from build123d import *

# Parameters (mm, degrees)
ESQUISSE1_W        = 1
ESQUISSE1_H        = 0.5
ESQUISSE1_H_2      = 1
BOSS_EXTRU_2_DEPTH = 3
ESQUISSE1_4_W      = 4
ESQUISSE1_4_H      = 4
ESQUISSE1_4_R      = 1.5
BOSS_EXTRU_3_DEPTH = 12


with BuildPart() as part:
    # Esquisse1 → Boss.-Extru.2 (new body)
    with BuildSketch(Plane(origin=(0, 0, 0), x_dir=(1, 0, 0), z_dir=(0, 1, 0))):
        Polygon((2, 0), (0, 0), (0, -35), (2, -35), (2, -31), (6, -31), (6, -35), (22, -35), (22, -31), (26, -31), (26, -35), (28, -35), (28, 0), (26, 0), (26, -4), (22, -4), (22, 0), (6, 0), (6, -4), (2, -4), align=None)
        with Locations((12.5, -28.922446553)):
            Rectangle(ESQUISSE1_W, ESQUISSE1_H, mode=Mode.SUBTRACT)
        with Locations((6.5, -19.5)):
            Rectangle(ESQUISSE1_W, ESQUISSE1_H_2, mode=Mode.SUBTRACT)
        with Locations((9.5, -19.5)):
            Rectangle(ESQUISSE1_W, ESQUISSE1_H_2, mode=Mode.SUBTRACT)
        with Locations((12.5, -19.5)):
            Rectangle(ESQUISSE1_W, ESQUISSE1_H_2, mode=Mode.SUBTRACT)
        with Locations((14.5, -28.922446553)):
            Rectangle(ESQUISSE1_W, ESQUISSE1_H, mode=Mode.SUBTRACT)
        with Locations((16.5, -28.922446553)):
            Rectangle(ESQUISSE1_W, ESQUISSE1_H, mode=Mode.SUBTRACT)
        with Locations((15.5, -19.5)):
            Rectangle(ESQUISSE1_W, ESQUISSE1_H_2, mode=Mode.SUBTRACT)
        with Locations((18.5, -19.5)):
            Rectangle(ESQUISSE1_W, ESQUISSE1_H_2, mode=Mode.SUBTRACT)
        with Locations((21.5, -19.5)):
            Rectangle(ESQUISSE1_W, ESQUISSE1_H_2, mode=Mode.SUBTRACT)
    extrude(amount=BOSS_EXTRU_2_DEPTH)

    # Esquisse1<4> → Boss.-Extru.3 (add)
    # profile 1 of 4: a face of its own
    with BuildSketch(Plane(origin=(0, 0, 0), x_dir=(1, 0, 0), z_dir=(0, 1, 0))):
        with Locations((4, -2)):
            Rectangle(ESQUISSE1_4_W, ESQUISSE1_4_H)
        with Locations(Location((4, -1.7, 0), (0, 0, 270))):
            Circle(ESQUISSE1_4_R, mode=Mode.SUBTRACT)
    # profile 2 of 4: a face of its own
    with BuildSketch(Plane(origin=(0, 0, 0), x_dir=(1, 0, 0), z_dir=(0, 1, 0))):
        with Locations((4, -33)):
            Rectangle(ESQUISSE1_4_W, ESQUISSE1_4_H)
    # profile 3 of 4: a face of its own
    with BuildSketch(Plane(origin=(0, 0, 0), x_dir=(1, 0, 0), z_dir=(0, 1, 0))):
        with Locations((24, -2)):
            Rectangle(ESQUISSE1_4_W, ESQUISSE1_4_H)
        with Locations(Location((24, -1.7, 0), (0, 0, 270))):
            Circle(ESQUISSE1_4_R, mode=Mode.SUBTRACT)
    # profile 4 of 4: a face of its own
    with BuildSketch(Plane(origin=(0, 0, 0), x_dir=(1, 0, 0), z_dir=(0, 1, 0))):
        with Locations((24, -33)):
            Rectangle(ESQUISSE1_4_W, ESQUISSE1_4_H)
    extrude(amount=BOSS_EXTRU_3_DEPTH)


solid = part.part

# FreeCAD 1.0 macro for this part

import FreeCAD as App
import Part
import Sketcher

doc = App.newDocument("Part")
params = doc.addObject("Spreadsheet::Sheet", "Params")
for row, (alias, value) in enumerate([
    ("sketch1_width", "2 mm"),
    ("sketch1_width2", "4 mm"),
    ("sketch1_width3", "16 mm"),
    ("sketch1_width4", "1 mm"),
    ("sketch1_height", "35 mm"),
    ("pad1_length", "3 mm"),
    ("sketch2_diameter", "3 mm"),
    ("sketch2_width", "4 mm"),
    ("pad2_length", "12 mm"),
], start=1):
    params.set(f"A{row}", alias)
    params.set(f"B{row}", "=" + value)
    params.setAlias(f"B{row}", alias)

body = doc.addObject("PartDesign::Body", "Body")

sketch1 = body.newObject("Sketcher::SketchObject", "Sketch")
sketch1.AttachmentSupport = (doc.getObject("XZ_Plane"), [""])
sketch1.MapMode = "FlatFace"
sketch1.addGeometry(Part.LineSegment(App.Vector(2, 0, 0), App.Vector(0, 0, 0)), False)
sketch1.addGeometry(Part.LineSegment(App.Vector(0, 0, 0), App.Vector(0, 35, 0)), False)
sketch1.addGeometry(Part.LineSegment(App.Vector(0, 35, 0), App.Vector(2, 35, 0)), False)
sketch1.addGeometry(Part.LineSegment(App.Vector(2, 35, 0), App.Vector(2, 31, 0)), False)
sketch1.addGeometry(Part.LineSegment(App.Vector(2, 31, 0), App.Vector(6, 31, 0)), False)
sketch1.addGeometry(Part.LineSegment(App.Vector(6, 31, 0), App.Vector(6, 35, 0)), False)
sketch1.addGeometry(Part.LineSegment(App.Vector(6, 35, 0), App.Vector(22, 35, 0)), False)
sketch1.addGeometry(Part.LineSegment(App.Vector(22, 35, 0), App.Vector(22, 31, 0)), False)
sketch1.addGeometry(Part.LineSegment(App.Vector(22, 31, 0), App.Vector(26, 31, 0)), False)
sketch1.addGeometry(Part.LineSegment(App.Vector(26, 31, 0), App.Vector(26, 35, 0)), False)
sketch1.addGeometry(Part.LineSegment(App.Vector(26, 35, 0), App.Vector(28, 35, 0)), False)
sketch1.addGeometry(Part.LineSegment(App.Vector(28, 35, 0), App.Vector(28, 0, 0)), False)
sketch1.addGeometry(Part.LineSegment(App.Vector(28, 0, 0), App.Vector(26, 0, 0)), False)
sketch1.addGeometry(Part.LineSegment(App.Vector(26, 0, 0), App.Vector(26, 4, 0)), False)
sketch1.addGeometry(Part.LineSegment(App.Vector(26, 4, 0), App.Vector(22, 4, 0)), False)
sketch1.addGeometry(Part.LineSegment(App.Vector(22, 4, 0), App.Vector(22, 0, 0)), False)
sketch1.addGeometry(Part.LineSegment(App.Vector(22, 0, 0), App.Vector(6, 0, 0)), False)
sketch1.addGeometry(Part.LineSegment(App.Vector(6, 0, 0), App.Vector(6, 4, 0)), False)
sketch1.addGeometry(Part.LineSegment(App.Vector(6, 4, 0), App.Vector(2, 4, 0)), False)
sketch1.addGeometry(Part.LineSegment(App.Vector(2, 4, 0), App.Vector(2, 0, 0)), False)
sketch1.addGeometry(Part.LineSegment(App.Vector(13, 29.172447, 0), App.Vector(12, 29.172447, 0)), False)
sketch1.addGeometry(Part.LineSegment(App.Vector(12, 29.172447, 0), App.Vector(12, 28.672447, 0)), False)
sketch1.addGeometry(Part.LineSegment(App.Vector(12, 28.672447, 0), App.Vector(13, 28.672447, 0)), False)
sketch1.addGeometry(Part.LineSegment(App.Vector(13, 28.672447, 0), App.Vector(13, 29.172447, 0)), False)
sketch1.addGeometry(Part.LineSegment(App.Vector(15, 29.172447, 0), App.Vector(14, 29.172447, 0)), False)
sketch1.addGeometry(Part.LineSegment(App.Vector(14, 29.172447, 0), App.Vector(14, 28.672447, 0)), False)
sketch1.addGeometry(Part.LineSegment(App.Vector(14, 28.672447, 0), App.Vector(15, 28.672447, 0)), False)
sketch1.addGeometry(Part.LineSegment(App.Vector(15, 28.672447, 0), App.Vector(15, 29.172447, 0)), False)
sketch1.addGeometry(Part.LineSegment(App.Vector(17, 29.172447, 0), App.Vector(16, 29.172447, 0)), False)
sketch1.addGeometry(Part.LineSegment(App.Vector(16, 29.172447, 0), App.Vector(16, 28.672447, 0)), False)
sketch1.addGeometry(Part.LineSegment(App.Vector(16, 28.672447, 0), App.Vector(17, 28.672447, 0)), False)
sketch1.addGeometry(Part.LineSegment(App.Vector(17, 28.672447, 0), App.Vector(17, 29.172447, 0)), False)
sketch1.addGeometry(Part.LineSegment(App.Vector(7, 20, 0), App.Vector(6, 20, 0)), False)
sketch1.addGeometry(Part.LineSegment(App.Vector(6, 20, 0), App.Vector(6, 19, 0)), False)
sketch1.addGeometry(Part.LineSegment(App.Vector(6, 19, 0), App.Vector(7, 19, 0)), False)
sketch1.addGeometry(Part.LineSegment(App.Vector(7, 19, 0), App.Vector(7, 20, 0)), False)
sketch1.addGeometry(Part.LineSegment(App.Vector(10, 20, 0), App.Vector(9, 20, 0)), False)
sketch1.addGeometry(Part.LineSegment(App.Vector(9, 20, 0), App.Vector(9, 19, 0)), False)
sketch1.addGeometry(Part.LineSegment(App.Vector(9, 19, 0), App.Vector(10, 19, 0)), False)
sketch1.addGeometry(Part.LineSegment(App.Vector(10, 19, 0), App.Vector(10, 20, 0)), False)
sketch1.addGeometry(Part.LineSegment(App.Vector(13, 20, 0), App.Vector(12, 20, 0)), False)
sketch1.addGeometry(Part.LineSegment(App.Vector(12, 20, 0), App.Vector(12, 19, 0)), False)
sketch1.addGeometry(Part.LineSegment(App.Vector(12, 19, 0), App.Vector(13, 19, 0)), False)
sketch1.addGeometry(Part.LineSegment(App.Vector(13, 19, 0), App.Vector(13, 20, 0)), False)
sketch1.addGeometry(Part.LineSegment(App.Vector(16, 20, 0), App.Vector(15, 20, 0)), False)
sketch1.addGeometry(Part.LineSegment(App.Vector(15, 20, 0), App.Vector(15, 19, 0)), False)
sketch1.addGeometry(Part.LineSegment(App.Vector(15, 19, 0), App.Vector(16, 19, 0)), False)
sketch1.addGeometry(Part.LineSegment(App.Vector(16, 19, 0), App.Vector(16, 20, 0)), False)
sketch1.addGeometry(Part.LineSegment(App.Vector(19, 20, 0), App.Vector(18, 20, 0)), False)
sketch1.addGeometry(Part.LineSegment(App.Vector(18, 20, 0), App.Vector(18, 19, 0)), False)
sketch1.addGeometry(Part.LineSegment(App.Vector(18, 19, 0), App.Vector(19, 19, 0)), False)
sketch1.addGeometry(Part.LineSegment(App.Vector(19, 19, 0), App.Vector(19, 20, 0)), False)
sketch1.addGeometry(Part.LineSegment(App.Vector(22, 20, 0), App.Vector(21, 20, 0)), False)
sketch1.addGeometry(Part.LineSegment(App.Vector(21, 20, 0), App.Vector(21, 19, 0)), False)
sketch1.addGeometry(Part.LineSegment(App.Vector(21, 19, 0), App.Vector(22, 19, 0)), False)
sketch1.addGeometry(Part.LineSegment(App.Vector(22, 19, 0), App.Vector(22, 20, 0)), False)
sketch1.addConstraint(Sketcher.Constraint("Coincident", 0, 2, 1, 1))
sketch1.addConstraint(Sketcher.Constraint("Coincident", 1, 2, 2, 1))
sketch1.addConstraint(Sketcher.Constraint("Coincident", 2, 2, 3, 1))
sketch1.addConstraint(Sketcher.Constraint("Coincident", 3, 2, 4, 1))
sketch1.addConstraint(Sketcher.Constraint("Coincident", 4, 2, 5, 1))
sketch1.addConstraint(Sketcher.Constraint("Coincident", 5, 2, 6, 1))
sketch1.addConstraint(Sketcher.Constraint("Coincident", 6, 2, 7, 1))
sketch1.addConstraint(Sketcher.Constraint("Coincident", 7, 2, 8, 1))
sketch1.addConstraint(Sketcher.Constraint("Coincident", 8, 2, 9, 1))
sketch1.addConstraint(Sketcher.Constraint("Coincident", 9, 2, 10, 1))
sketch1.addConstraint(Sketcher.Constraint("Coincident", 10, 2, 11, 1))
sketch1.addConstraint(Sketcher.Constraint("Coincident", 11, 2, 12, 1))
sketch1.addConstraint(Sketcher.Constraint("Coincident", 12, 2, 13, 1))
sketch1.addConstraint(Sketcher.Constraint("Coincident", 13, 2, 14, 1))
sketch1.addConstraint(Sketcher.Constraint("Coincident", 14, 2, 15, 1))
sketch1.addConstraint(Sketcher.Constraint("Coincident", 15, 2, 16, 1))
sketch1.addConstraint(Sketcher.Constraint("Coincident", 16, 2, 17, 1))
sketch1.addConstraint(Sketcher.Constraint("Coincident", 17, 2, 18, 1))
sketch1.addConstraint(Sketcher.Constraint("Coincident", 18, 2, 19, 1))
sketch1.addConstraint(Sketcher.Constraint("Coincident", 19, 2, 0, 1))
sketch1.addConstraint(Sketcher.Constraint("Coincident", 20, 2, 21, 1))
sketch1.addConstraint(Sketcher.Constraint("Coincident", 21, 2, 22, 1))
sketch1.addConstraint(Sketcher.Constraint("Coincident", 22, 2, 23, 1))
sketch1.addConstraint(Sketcher.Constraint("Coincident", 23, 2, 20, 1))
sketch1.addConstraint(Sketcher.Constraint("Coincident", 24, 2, 25, 1))
sketch1.addConstraint(Sketcher.Constraint("Coincident", 25, 2, 26, 1))
sketch1.addConstraint(Sketcher.Constraint("Coincident", 26, 2, 27, 1))
sketch1.addConstraint(Sketcher.Constraint("Coincident", 27, 2, 24, 1))
sketch1.addConstraint(Sketcher.Constraint("Coincident", 28, 2, 29, 1))
sketch1.addConstraint(Sketcher.Constraint("Coincident", 29, 2, 30, 1))
sketch1.addConstraint(Sketcher.Constraint("Coincident", 30, 2, 31, 1))
sketch1.addConstraint(Sketcher.Constraint("Coincident", 31, 2, 28, 1))
sketch1.addConstraint(Sketcher.Constraint("Coincident", 32, 2, 33, 1))
sketch1.addConstraint(Sketcher.Constraint("Coincident", 33, 2, 34, 1))
sketch1.addConstraint(Sketcher.Constraint("Coincident", 34, 2, 35, 1))
sketch1.addConstraint(Sketcher.Constraint("Coincident", 35, 2, 32, 1))
sketch1.addConstraint(Sketcher.Constraint("Coincident", 36, 2, 37, 1))
sketch1.addConstraint(Sketcher.Constraint("Coincident", 37, 2, 38, 1))
sketch1.addConstraint(Sketcher.Constraint("Coincident", 38, 2, 39, 1))
sketch1.addConstraint(Sketcher.Constraint("Coincident", 39, 2, 36, 1))
sketch1.addConstraint(Sketcher.Constraint("Coincident", 40, 2, 41, 1))
sketch1.addConstraint(Sketcher.Constraint("Coincident", 41, 2, 42, 1))
sketch1.addConstraint(Sketcher.Constraint("Coincident", 42, 2, 43, 1))
sketch1.addConstraint(Sketcher.Constraint("Coincident", 43, 2, 40, 1))
sketch1.addConstraint(Sketcher.Constraint("Coincident", 44, 2, 45, 1))
sketch1.addConstraint(Sketcher.Constraint("Coincident", 45, 2, 46, 1))
sketch1.addConstraint(Sketcher.Constraint("Coincident", 46, 2, 47, 1))
sketch1.addConstraint(Sketcher.Constraint("Coincident", 47, 2, 44, 1))
sketch1.addConstraint(Sketcher.Constraint("Coincident", 48, 2, 49, 1))
sketch1.addConstraint(Sketcher.Constraint("Coincident", 49, 2, 50, 1))
sketch1.addConstraint(Sketcher.Constraint("Coincident", 50, 2, 51, 1))
sketch1.addConstraint(Sketcher.Constraint("Coincident", 51, 2, 48, 1))
sketch1.addConstraint(Sketcher.Constraint("Coincident", 52, 2, 53, 1))
sketch1.addConstraint(Sketcher.Constraint("Coincident", 53, 2, 54, 1))
sketch1.addConstraint(Sketcher.Constraint("Coincident", 54, 2, 55, 1))
sketch1.addConstraint(Sketcher.Constraint("Coincident", 55, 2, 52, 1))
sketch1.addConstraint(Sketcher.Constraint("Horizontal", 0))
sketch1.addConstraint(Sketcher.Constraint("Vertical", 1))
sketch1.addConstraint(Sketcher.Constraint("Horizontal", 2))
sketch1.addConstraint(Sketcher.Constraint("Vertical", 3))
sketch1.addConstraint(Sketcher.Constraint("Horizontal", 4))
sketch1.addConstraint(Sketcher.Constraint("Vertical", 5))
sketch1.addConstraint(Sketcher.Constraint("Horizontal", 6))
sketch1.addConstraint(Sketcher.Constraint("Vertical", 7))
sketch1.addConstraint(Sketcher.Constraint("Horizontal", 8))
sketch1.addConstraint(Sketcher.Constraint("Vertical", 9))
sketch1.addConstraint(Sketcher.Constraint("Horizontal", 10))
sketch1.addConstraint(Sketcher.Constraint("Vertical", 11))
sketch1.addConstraint(Sketcher.Constraint("Horizontal", 12))
sketch1.addConstraint(Sketcher.Constraint("Vertical", 13))
sketch1.addConstraint(Sketcher.Constraint("Horizontal", 14))
sketch1.addConstraint(Sketcher.Constraint("Vertical", 15))
sketch1.addConstraint(Sketcher.Constraint("Horizontal", 16))
sketch1.addConstraint(Sketcher.Constraint("Vertical", 17))
sketch1.addConstraint(Sketcher.Constraint("Horizontal", 18))
sketch1.addConstraint(Sketcher.Constraint("Vertical", 19))
sketch1.addConstraint(Sketcher.Constraint("Horizontal", 20))
sketch1.addConstraint(Sketcher.Constraint("Vertical", 21))
sketch1.addConstraint(Sketcher.Constraint("Horizontal", 22))
sketch1.addConstraint(Sketcher.Constraint("Vertical", 23))
sketch1.addConstraint(Sketcher.Constraint("Horizontal", 24))
sketch1.addConstraint(Sketcher.Constraint("Vertical", 25))
sketch1.addConstraint(Sketcher.Constraint("Horizontal", 26))
sketch1.addConstraint(Sketcher.Constraint("Vertical", 27))
sketch1.addConstraint(Sketcher.Constraint("Horizontal", 28))
sketch1.addConstraint(Sketcher.Constraint("Vertical", 29))
sketch1.addConstraint(Sketcher.Constraint("Horizontal", 30))
sketch1.addConstraint(Sketcher.Constraint("Vertical", 31))
sketch1.addConstraint(Sketcher.Constraint("Horizontal", 32))
sketch1.addConstraint(Sketcher.Constraint("Vertical", 33))
sketch1.addConstraint(Sketcher.Constraint("Horizontal", 34))
sketch1.addConstraint(Sketcher.Constraint("Vertical", 35))
sketch1.addConstraint(Sketcher.Constraint("Horizontal", 36))
sketch1.addConstraint(Sketcher.Constraint("Vertical", 37))
sketch1.addConstraint(Sketcher.Constraint("Horizontal", 38))
sketch1.addConstraint(Sketcher.Constraint("Vertical", 39))
sketch1.addConstraint(Sketcher.Constraint("Horizontal", 40))
sketch1.addConstraint(Sketcher.Constraint("Vertical", 41))
sketch1.addConstraint(Sketcher.Constraint("Horizontal", 42))
sketch1.addConstraint(Sketcher.Constraint("Vertical", 43))
sketch1.addConstraint(Sketcher.Constraint("Horizontal", 44))
sketch1.addConstraint(Sketcher.Constraint("Vertical", 45))
sketch1.addConstraint(Sketcher.Constraint("Horizontal", 46))
sketch1.addConstraint(Sketcher.Constraint("Vertical", 47))
sketch1.addConstraint(Sketcher.Constraint("Horizontal", 48))
sketch1.addConstraint(Sketcher.Constraint("Vertical", 49))
sketch1.addConstraint(Sketcher.Constraint("Horizontal", 50))
sketch1.addConstraint(Sketcher.Constraint("Vertical", 51))
sketch1.addConstraint(Sketcher.Constraint("Horizontal", 52))
sketch1.addConstraint(Sketcher.Constraint("Vertical", 53))
sketch1.addConstraint(Sketcher.Constraint("Horizontal", 54))
sketch1.addConstraint(Sketcher.Constraint("Vertical", 55))
sketch1.addConstraint(Sketcher.Constraint("Coincident", 0, 2, -1, 1))
sketch1.addConstraint(Sketcher.Constraint("PointOnObject", 11, 2, -1))
sketch1.addConstraint(Sketcher.Constraint("PointOnObject", 15, 2, -1))
sketch1.addConstraint(Sketcher.Constraint("Horizontal", 2, 2, 5, 2))
sketch1.addConstraint(Sketcher.Constraint("Horizontal", 4, 2, 7, 2))
sketch1.addConstraint(Sketcher.Constraint("Horizontal", 6, 2, 9, 2))
sketch1.addConstraint(Sketcher.Constraint("Horizontal", 14, 2, 17, 2))
sketch1.addConstraint(Sketcher.Constraint("Horizontal", 23, 2, 24, 2))
sketch1.addConstraint(Sketcher.Constraint("Horizontal", 22, 2, 25, 2))
sketch1.addConstraint(Sketcher.Constraint("Horizontal", 27, 2, 28, 2))
sketch1.addConstraint(Sketcher.Constraint("Horizontal", 26, 2, 29, 2))
sketch1.addConstraint(Sketcher.Constraint("Horizontal", 35, 2, 36, 2))
sketch1.addConstraint(Sketcher.Constraint("Horizontal", 34, 2, 37, 2))
sketch1.addConstraint(Sketcher.Constraint("Horizontal", 39, 2, 40, 2))
sketch1.addConstraint(Sketcher.Constraint("Horizontal", 38, 2, 41, 2))
sketch1.addConstraint(Sketcher.Constraint("Horizontal", 43, 2, 44, 2))
sketch1.addConstraint(Sketcher.Constraint("Horizontal", 42, 2, 45, 2))
sketch1.addConstraint(Sketcher.Constraint("Horizontal", 47, 2, 48, 2))
sketch1.addConstraint(Sketcher.Constraint("Horizontal", 46, 2, 49, 2))
sketch1.addConstraint(Sketcher.Constraint("Horizontal", 51, 2, 52, 2))
sketch1.addConstraint(Sketcher.Constraint("Horizontal", 50, 2, 53, 2))
sketch1.addConstraint(Sketcher.Constraint("Vertical", 9, 2, 12, 2))
sketch1.addConstraint(Sketcher.Constraint("Vertical", 7, 2, 14, 2))
sketch1.addConstraint(Sketcher.Constraint("Vertical", 5, 2, 16, 2))
sketch1.addConstraint(Sketcher.Constraint("Vertical", 3, 2, 18, 2))
sketch1.addConstraint(Sketcher.Constraint("Vertical", 17, 2, 32, 2))
sketch1.addConstraint(Sketcher.Constraint("Vertical", 21, 2, 40, 2))
sketch1.addConstraint(Sketcher.Constraint("Vertical", 23, 2, 42, 2))
sketch1.addConstraint(Sketcher.Constraint("Vertical", 27, 2, 44, 2))
sketch1.addConstraint(Sketcher.Constraint("Vertical", 29, 2, 46, 2))
sketch1.addConstraint(Sketcher.Constraint("Vertical", 15, 2, 54, 2))
sketch1.addConstraint(Sketcher.Constraint("Equal", 4, 8))
sketch1.addConstraint(Sketcher.Constraint("Equal", 2, 10))
sketch1.addConstraint(Sketcher.Constraint("Equal", 22, 24))
sketch1.addConstraint(Sketcher.Constraint("Equal", 26, 28))
sketch1.addConstraint(Sketcher.Constraint("Equal", 30, 32))
sketch1.addConstraint(Sketcher.Constraint("Equal", 34, 36))
sketch1.addConstraint(Sketcher.Constraint("Equal", 42, 44))
sketch1.addConstraint(Sketcher.Constraint("Equal", 46, 48))
sketch1.addConstraint(Sketcher.Constraint("Equal", 50, 52))
sketch1.addConstraint(Sketcher.Constraint("Equal", 18, 3))
sketch1.addConstraint(Sketcher.Constraint("Equal", 9, 13))
sketch1.addConstraint(Sketcher.Constraint("Equal", 54, 33))
sketch1.addConstraint(Sketcher.Constraint("DistanceX", 0, 2, 0, 1, 2.0))
sketch1.addConstraint(Sketcher.Constraint("DistanceX", 4, 1, 4, 2, 4.0))
sketch1.addConstraint(Sketcher.Constraint("DistanceX", 6, 1, 6, 2, 16.0))
sketch1.addConstraint(Sketcher.Constraint("DistanceX", 20, 2, 20, 1, 1.0))
sketch1.addConstraint(Sketcher.Constraint("DistanceY", 1, 1, 1, 2, 35.0))
sketch1.addConstraint(Sketcher.Constraint("DistanceY", 21, 2, 21, 1, 0.5))
sketch1.addConstraint(Sketcher.Constraint("DistanceX", -1, 1, 20, 2, 12.0))
sketch1.addConstraint(Sketcher.Constraint("DistanceX", -1, 1, 24, 2, 14.0))
sketch1.addConstraint(Sketcher.Constraint("DistanceY", -1, 1, 32, 2, 20.0))
sketch1.addConstraint(Sketcher.Constraint("DistanceX", -1, 1, 36, 2, 9.0))
sketch1.addConstraint(Sketcher.Constraint("DistanceX", -1, 1, 48, 2, 18.0))
sketch1.addConstraint(Sketcher.Constraint("DistanceY", -1, 1, 20, 2, 29.172447))
sketch1.setExpression("Constraints[155]", "Params.sketch1_width")
sketch1.setExpression("Constraints[156]", "Params.sketch1_width2")
sketch1.setExpression("Constraints[157]", "Params.sketch1_width3")
sketch1.setExpression("Constraints[158]", "Params.sketch1_width4")
sketch1.setExpression("Constraints[159]", "Params.sketch1_height")
pad1 = body.newObject("PartDesign::Pad", "Pad")
pad1.Profile = sketch1
pad1.setExpression("Length", "Params.pad1_length")
pad1.Reversed = True

sketch2 = body.newObject("Sketcher::SketchObject", "Sketch001")
sketch2.AttachmentSupport = (doc.getObject("XZ_Plane"), [""])
sketch2.MapMode = "FlatFace"
sketch2.addGeometry(Part.LineSegment(App.Vector(2, 0, 0), App.Vector(2, 4, 0)), False)
sketch2.addGeometry(Part.LineSegment(App.Vector(2, 4, 0), App.Vector(6, 4, 0)), False)
sketch2.addGeometry(Part.LineSegment(App.Vector(6, 4, 0), App.Vector(6, 0, 0)), False)
sketch2.addGeometry(Part.LineSegment(App.Vector(6, 0, 0), App.Vector(2, 0, 0)), False)
sketch2.addGeometry(Part.Circle(App.Vector(4, 1.7, 0), App.Vector(0, 0, 1), 1.5), False)
sketch2.addGeometry(Part.LineSegment(App.Vector(2, 31, 0), App.Vector(2, 35, 0)), False)
sketch2.addGeometry(Part.LineSegment(App.Vector(2, 35, 0), App.Vector(6, 35, 0)), False)
sketch2.addGeometry(Part.LineSegment(App.Vector(6, 35, 0), App.Vector(6, 31, 0)), False)
sketch2.addGeometry(Part.LineSegment(App.Vector(6, 31, 0), App.Vector(2, 31, 0)), False)
sketch2.addGeometry(Part.LineSegment(App.Vector(22, 0, 0), App.Vector(22, 4, 0)), False)
sketch2.addGeometry(Part.LineSegment(App.Vector(22, 4, 0), App.Vector(26, 4, 0)), False)
sketch2.addGeometry(Part.LineSegment(App.Vector(26, 4, 0), App.Vector(26, 0, 0)), False)
sketch2.addGeometry(Part.LineSegment(App.Vector(26, 0, 0), App.Vector(22, 0, 0)), False)
sketch2.addGeometry(Part.Circle(App.Vector(24, 1.7, 0), App.Vector(0, 0, 1), 1.5), False)
sketch2.addGeometry(Part.LineSegment(App.Vector(22, 31, 0), App.Vector(22, 35, 0)), False)
sketch2.addGeometry(Part.LineSegment(App.Vector(22, 35, 0), App.Vector(26, 35, 0)), False)
sketch2.addGeometry(Part.LineSegment(App.Vector(26, 35, 0), App.Vector(26, 31, 0)), False)
sketch2.addGeometry(Part.LineSegment(App.Vector(26, 31, 0), App.Vector(22, 31, 0)), False)
sketch2.addConstraint(Sketcher.Constraint("Coincident", 0, 2, 1, 1))
sketch2.addConstraint(Sketcher.Constraint("Coincident", 1, 2, 2, 1))
sketch2.addConstraint(Sketcher.Constraint("Coincident", 2, 2, 3, 1))
sketch2.addConstraint(Sketcher.Constraint("Coincident", 3, 2, 0, 1))
sketch2.addConstraint(Sketcher.Constraint("Coincident", 5, 2, 6, 1))
sketch2.addConstraint(Sketcher.Constraint("Coincident", 6, 2, 7, 1))
sketch2.addConstraint(Sketcher.Constraint("Coincident", 7, 2, 8, 1))
sketch2.addConstraint(Sketcher.Constraint("Coincident", 8, 2, 5, 1))
sketch2.addConstraint(Sketcher.Constraint("Coincident", 9, 2, 10, 1))
sketch2.addConstraint(Sketcher.Constraint("Coincident", 10, 2, 11, 1))
sketch2.addConstraint(Sketcher.Constraint("Coincident", 11, 2, 12, 1))
sketch2.addConstraint(Sketcher.Constraint("Coincident", 12, 2, 9, 1))
sketch2.addConstraint(Sketcher.Constraint("Coincident", 14, 2, 15, 1))
sketch2.addConstraint(Sketcher.Constraint("Coincident", 15, 2, 16, 1))
sketch2.addConstraint(Sketcher.Constraint("Coincident", 16, 2, 17, 1))
sketch2.addConstraint(Sketcher.Constraint("Coincident", 17, 2, 14, 1))
sketch2.addConstraint(Sketcher.Constraint("Vertical", 0))
sketch2.addConstraint(Sketcher.Constraint("Horizontal", 1))
sketch2.addConstraint(Sketcher.Constraint("Vertical", 2))
sketch2.addConstraint(Sketcher.Constraint("Horizontal", 3))
sketch2.addConstraint(Sketcher.Constraint("Vertical", 5))
sketch2.addConstraint(Sketcher.Constraint("Horizontal", 6))
sketch2.addConstraint(Sketcher.Constraint("Vertical", 7))
sketch2.addConstraint(Sketcher.Constraint("Horizontal", 8))
sketch2.addConstraint(Sketcher.Constraint("Vertical", 9))
sketch2.addConstraint(Sketcher.Constraint("Horizontal", 10))
sketch2.addConstraint(Sketcher.Constraint("Vertical", 11))
sketch2.addConstraint(Sketcher.Constraint("Horizontal", 12))
sketch2.addConstraint(Sketcher.Constraint("Vertical", 14))
sketch2.addConstraint(Sketcher.Constraint("Horizontal", 15))
sketch2.addConstraint(Sketcher.Constraint("Vertical", 16))
sketch2.addConstraint(Sketcher.Constraint("Horizontal", 17))
sketch2.addConstraint(Sketcher.Constraint("Equal", 4, 13))
sketch2.addConstraint(Sketcher.Constraint("PointOnObject", 2, 2, -1))
sketch2.addConstraint(Sketcher.Constraint("PointOnObject", 11, 2, -1))
sketch2.addConstraint(Sketcher.Constraint("Horizontal", 4, 3, 13, 3))
sketch2.addConstraint(Sketcher.Constraint("Horizontal", 1, 2, 9, 2))
sketch2.addConstraint(Sketcher.Constraint("Horizontal", 6, 2, 14, 2))
sketch2.addConstraint(Sketcher.Constraint("Horizontal", 8, 2, 16, 2))
sketch2.addConstraint(Sketcher.Constraint("Vertical", 3, 2, 5, 2))
sketch2.addConstraint(Sketcher.Constraint("Vertical", 2, 2, 6, 2))
sketch2.addConstraint(Sketcher.Constraint("Vertical", 12, 2, 14, 2))
sketch2.addConstraint(Sketcher.Constraint("Vertical", 11, 2, 15, 2))
sketch2.addConstraint(Sketcher.Constraint("Equal", 8, 10))
sketch2.addConstraint(Sketcher.Constraint("Equal", 17, 0))
sketch2.addConstraint(Sketcher.Constraint("Equal", 2, 5))
sketch2.addConstraint(Sketcher.Constraint("Diameter", 4, 3.0))
sketch2.addConstraint(Sketcher.Constraint("DistanceX", 1, 1, 1, 2, 4.0))
sketch2.addConstraint(Sketcher.Constraint("DistanceX", -1, 1, 4, 3, 4.0))
sketch2.addConstraint(Sketcher.Constraint("DistanceX", -1, 1, 13, 3, 24.0))
sketch2.addConstraint(Sketcher.Constraint("DistanceX", -1, 1, 0, 2, 2.0))
sketch2.addConstraint(Sketcher.Constraint("DistanceY", -1, 1, 5, 2, 35.0))
sketch2.addConstraint(Sketcher.Constraint("DistanceX", -1, 1, 9, 2, 22.0))
sketch2.addConstraint(Sketcher.Constraint("DistanceY", -1, 1, 4, 3, 1.7))
sketch2.setExpression("Constraints[46]", "Params.sketch2_diameter")
sketch2.setExpression("Constraints[47]", "Params.sketch2_width")
pad2 = body.newObject("PartDesign::Pad", "Pad001")
pad2.Profile = sketch2
pad2.setExpression("Length", "Params.pad2_length")
pad2.Reversed = True

doc.recompute()
